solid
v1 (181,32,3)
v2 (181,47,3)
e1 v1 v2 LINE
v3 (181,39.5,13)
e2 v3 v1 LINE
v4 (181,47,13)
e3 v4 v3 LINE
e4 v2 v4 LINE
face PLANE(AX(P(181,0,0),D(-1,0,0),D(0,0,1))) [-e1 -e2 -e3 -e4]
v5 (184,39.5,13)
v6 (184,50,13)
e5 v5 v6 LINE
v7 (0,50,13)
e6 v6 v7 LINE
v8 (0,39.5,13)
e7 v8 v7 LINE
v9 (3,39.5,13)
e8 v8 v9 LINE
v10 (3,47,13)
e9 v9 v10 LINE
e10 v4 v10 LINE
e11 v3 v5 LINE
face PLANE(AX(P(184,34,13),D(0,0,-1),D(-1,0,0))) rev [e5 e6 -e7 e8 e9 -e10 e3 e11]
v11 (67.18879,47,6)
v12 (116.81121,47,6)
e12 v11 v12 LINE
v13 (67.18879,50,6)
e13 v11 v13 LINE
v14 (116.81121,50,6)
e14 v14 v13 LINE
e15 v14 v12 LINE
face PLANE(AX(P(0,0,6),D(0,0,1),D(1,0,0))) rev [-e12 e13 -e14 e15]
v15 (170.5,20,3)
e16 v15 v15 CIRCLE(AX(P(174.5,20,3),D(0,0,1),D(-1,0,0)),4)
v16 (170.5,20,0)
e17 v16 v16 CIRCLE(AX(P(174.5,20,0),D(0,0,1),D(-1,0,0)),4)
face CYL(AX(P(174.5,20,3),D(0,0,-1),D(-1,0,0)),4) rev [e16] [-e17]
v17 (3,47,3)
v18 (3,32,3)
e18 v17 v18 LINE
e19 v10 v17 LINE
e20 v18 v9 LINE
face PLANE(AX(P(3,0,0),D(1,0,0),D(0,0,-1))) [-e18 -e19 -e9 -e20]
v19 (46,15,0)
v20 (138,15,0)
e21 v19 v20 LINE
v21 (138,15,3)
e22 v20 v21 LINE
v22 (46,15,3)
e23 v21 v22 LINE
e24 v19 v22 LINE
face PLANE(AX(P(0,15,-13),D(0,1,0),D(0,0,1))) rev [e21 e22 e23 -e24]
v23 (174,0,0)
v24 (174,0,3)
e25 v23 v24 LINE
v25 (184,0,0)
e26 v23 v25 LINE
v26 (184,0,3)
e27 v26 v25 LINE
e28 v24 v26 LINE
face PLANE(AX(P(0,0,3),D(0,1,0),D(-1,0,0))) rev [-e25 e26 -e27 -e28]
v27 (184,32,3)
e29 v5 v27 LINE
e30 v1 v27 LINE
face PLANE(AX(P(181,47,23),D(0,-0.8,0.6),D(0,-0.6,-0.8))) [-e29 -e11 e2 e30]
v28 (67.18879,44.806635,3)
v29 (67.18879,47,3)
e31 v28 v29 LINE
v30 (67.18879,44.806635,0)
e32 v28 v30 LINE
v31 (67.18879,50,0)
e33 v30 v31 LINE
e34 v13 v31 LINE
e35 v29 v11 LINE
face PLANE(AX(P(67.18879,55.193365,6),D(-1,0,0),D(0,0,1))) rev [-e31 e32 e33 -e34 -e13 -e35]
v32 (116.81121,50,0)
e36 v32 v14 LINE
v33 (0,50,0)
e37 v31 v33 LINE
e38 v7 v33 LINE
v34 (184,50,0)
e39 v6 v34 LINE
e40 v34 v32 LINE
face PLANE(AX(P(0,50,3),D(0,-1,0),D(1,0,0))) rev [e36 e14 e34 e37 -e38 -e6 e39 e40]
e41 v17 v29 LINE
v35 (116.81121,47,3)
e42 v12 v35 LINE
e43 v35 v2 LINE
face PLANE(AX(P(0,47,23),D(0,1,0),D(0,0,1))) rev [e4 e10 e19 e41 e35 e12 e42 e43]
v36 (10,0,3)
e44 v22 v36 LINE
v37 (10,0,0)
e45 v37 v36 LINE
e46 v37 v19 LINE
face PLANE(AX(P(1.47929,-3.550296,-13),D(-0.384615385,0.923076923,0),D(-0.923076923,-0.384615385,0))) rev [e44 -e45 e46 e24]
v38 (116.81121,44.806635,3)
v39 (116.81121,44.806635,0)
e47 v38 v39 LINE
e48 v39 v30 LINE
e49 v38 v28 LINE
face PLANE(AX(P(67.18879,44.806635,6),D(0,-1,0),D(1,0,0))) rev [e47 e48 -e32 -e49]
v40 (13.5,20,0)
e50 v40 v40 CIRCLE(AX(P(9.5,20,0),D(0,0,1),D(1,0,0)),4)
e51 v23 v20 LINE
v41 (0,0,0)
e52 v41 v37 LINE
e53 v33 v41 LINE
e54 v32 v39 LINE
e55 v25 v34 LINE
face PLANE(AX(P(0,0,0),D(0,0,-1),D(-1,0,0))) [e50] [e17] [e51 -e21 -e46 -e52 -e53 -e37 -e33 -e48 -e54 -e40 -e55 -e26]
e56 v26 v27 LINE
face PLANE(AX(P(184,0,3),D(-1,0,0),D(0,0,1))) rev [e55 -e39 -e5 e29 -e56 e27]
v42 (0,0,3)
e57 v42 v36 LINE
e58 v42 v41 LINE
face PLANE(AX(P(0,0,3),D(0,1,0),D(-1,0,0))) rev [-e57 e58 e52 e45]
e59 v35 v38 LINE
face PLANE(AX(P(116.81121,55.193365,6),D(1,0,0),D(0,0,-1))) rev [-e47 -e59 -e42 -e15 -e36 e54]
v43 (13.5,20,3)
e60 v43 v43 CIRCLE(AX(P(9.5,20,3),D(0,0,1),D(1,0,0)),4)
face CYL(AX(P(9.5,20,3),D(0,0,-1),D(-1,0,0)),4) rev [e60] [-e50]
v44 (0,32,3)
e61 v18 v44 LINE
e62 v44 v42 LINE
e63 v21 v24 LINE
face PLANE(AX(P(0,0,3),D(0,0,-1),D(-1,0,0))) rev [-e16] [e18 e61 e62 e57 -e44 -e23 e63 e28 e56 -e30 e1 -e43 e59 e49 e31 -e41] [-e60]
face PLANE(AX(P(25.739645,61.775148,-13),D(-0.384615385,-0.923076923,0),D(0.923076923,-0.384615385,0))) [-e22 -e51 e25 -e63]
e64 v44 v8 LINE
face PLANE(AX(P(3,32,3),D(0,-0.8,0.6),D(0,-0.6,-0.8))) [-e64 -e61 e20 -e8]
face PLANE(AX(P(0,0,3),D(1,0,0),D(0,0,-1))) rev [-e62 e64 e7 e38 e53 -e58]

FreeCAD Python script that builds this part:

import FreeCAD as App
import Part
import Sketcher

doc = App.newDocument("Part")
body = doc.addObject("PartDesign::Body", "Body")

# Sketch on XY plane
sketch1 = doc.addObject("Sketcher::SketchObject", "Sketch")
body.addObject(sketch1)
sketch1.AttachmentSupport = (doc.XY_Plane, [""])
sketch1.MapMode = "FlatFace"
sketch1.addGeometry([
    Part.LineSegment(App.Vector(0, 50, 0), App.Vector(0, 0, 0)),  # 0
    Part.LineSegment(App.Vector(0, 0, 0), App.Vector(184, 0, 0)),  # 1
    Part.LineSegment(App.Vector(184, 0, 0), App.Vector(184, 50, 0)),  # 2
    Part.LineSegment(App.Vector(184, 50, 0), App.Vector(0, 50, 0)),  # 3
    Part.Circle(App.Vector(9.5, 20, 0), App.Vector(0, 0, 1), 4),  # 4
    Part.Circle(App.Vector(174.5, 20, 0), App.Vector(0, 0, 1), 4),  # 5
], False)
sketch1.addConstraint([
    Sketcher.Constraint("Coincident", 0, 2, 1, 1),
    Sketcher.Constraint("Coincident", 1, 2, 2, 1),
    Sketcher.Constraint("Coincident", 2, 2, 3, 1),
    Sketcher.Constraint("Coincident", 3, 2, 0, 1),
    Sketcher.Constraint("Vertical", 0),
    Sketcher.Constraint("Horizontal", 1),
    Sketcher.Constraint("Vertical", 2),
    Sketcher.Constraint("Horizontal", 3),
    Sketcher.Constraint("Coincident", 0, 2, -1, 1),
    Sketcher.Constraint("Equal", 4, 5),
    Sketcher.Constraint("Horizontal", 4, 3, 5, 3),
    Sketcher.Constraint("Diameter", 4, 8.0),
    Sketcher.Constraint("DistanceX", 1, 1, 1, 2, 184.0),
    Sketcher.Constraint("DistanceY", 0, 2, 0, 1, 50.0),
    Sketcher.Constraint("DistanceY", -1, 1, 4, 3, 20.0),
    Sketcher.Constraint("DistanceX", 4, 3, 5, 3, 165.0),
    Sketcher.Constraint("DistanceX", -1, 1, 4, 3, 9.5),
])
pad1 = doc.addObject("PartDesign::Pad", "Pad")
body.addObject(pad1)
pad1.Profile = sketch1
pad1.Length = 3

# Sketch on XY plane
sketch2 = doc.addObject("Sketcher::SketchObject", "Sketch001")
body.addObject(sketch2)
sketch2.AttachmentSupport = (doc.XY_Plane, [""])
sketch2.MapMode = "FlatFace"
sketch2.AttachmentOffset = App.Placement(App.Vector(0, 0, 3), App.Rotation())
sketch2.addGeometry([
    Part.LineSegment(App.Vector(0, 50, 0), App.Vector(0, 47, 0)),
    Part.LineSegment(App.Vector(0, 47, 0), App.Vector(184, 47, 0)),
    Part.LineSegment(App.Vector(184, 47, 0), App.Vector(184, 50, 0)),
    Part.LineSegment(App.Vector(184, 50, 0), App.Vector(0, 50, 0)),
], False)
sketch2.addConstraint([
    Sketcher.Constraint("Coincident", 0, 2, 1, 1),
    Sketcher.Constraint("Coincident", 1, 2, 2, 1),
    Sketcher.Constraint("Coincident", 2, 2, 3, 1),
    Sketcher.Constraint("Coincident", 3, 2, 0, 1),
    Sketcher.Constraint("Vertical", 0),
    Sketcher.Constraint("Horizontal", 1),
    Sketcher.Constraint("Vertical", 2),
    Sketcher.Constraint("Horizontal", 3),
    Sketcher.Constraint("PointOnObject", 0, 2, -2),
    Sketcher.Constraint("DistanceX", 1, 1, 1, 2, 184.0),
    Sketcher.Constraint("DistanceY", 0, 2, 0, 1, 3.0),
    Sketcher.Constraint("DistanceY", -1, 1, 0, 2, 47.0),
])
pad2 = doc.addObject("PartDesign::Pad", "Pad001")
body.addObject(pad2)
pad2.Profile = sketch2
pad2.Length = 20

# Sketch on YZ plane
sketch3 = doc.addObject("Sketcher::SketchObject", "Sketch002")
body.addObject(sketch3)
sketch3.AttachmentSupport = (doc.YZ_Plane, [""])
sketch3.MapMode = "FlatFace"
sketch3.addGeometry([
    Part.LineSegment(App.Vector(47, 23, 0), App.Vector(47, 3, 0)),
    Part.LineSegment(App.Vector(47, 3, 0), App.Vector(32, 3, 0)),
    Part.LineSegment(App.Vector(32, 3, 0), App.Vector(47, 23, 0)),
], False)
sketch3.addConstraint([
    Sketcher.Constraint("Coincident", 0, 2, 1, 1),
    Sketcher.Constraint("Coincident", 1, 2, 2, 1),
    Sketcher.Constraint("Coincident", 2, 2, 0, 1),
    Sketcher.Constraint("Vertical", 0),
    Sketcher.Constraint("Horizontal", 1),
    Sketcher.Constraint("DistanceX", 1, 2, 1, 1, 15.0),
    Sketcher.Constraint("DistanceY", 0, 2, 0, 1, 20.0),
    Sketcher.Constraint("DistanceX", -1, 1, 0, 2, 47.0),
    Sketcher.Constraint("DistanceY", -1, 1, 0, 2, 3.0),
])
pad3 = doc.addObject("PartDesign::Pad", "Pad002")
body.addObject(pad3)
pad3.Profile = sketch3
pad3.Length = 3

# Sketch on YZ plane
sketch4 = doc.addObject("Sketcher::SketchObject", "Sketch003")
body.addObject(sketch4)
sketch4.AttachmentSupport = (doc.YZ_Plane, [""])
sketch4.MapMode = "FlatFace"
sketch4.AttachmentOffset = App.Placement(App.Vector(0, 0, 184), App.Rotation())
sketch4.addGeometry([
    Part.LineSegment(App.Vector(47, 23, 0), App.Vector(32, 3, 0)),
    Part.LineSegment(App.Vector(32, 3, 0), App.Vector(47, 3, 0)),
    Part.LineSegment(App.Vector(47, 3, 0), App.Vector(47, 23, 0)),
], False)
sketch4.addConstraint([
    Sketcher.Constraint("Coincident", 0, 2, 1, 1),
    Sketcher.Constraint("Coincident", 1, 2, 2, 1),
    Sketcher.Constraint("Coincident", 2, 2, 0, 1),
    Sketcher.Constraint("Horizontal", 1),
    Sketcher.Constraint("Vertical", 2),
    Sketcher.Constraint("DistanceX", 1, 1, 1, 2, 15.0),
    Sketcher.Constraint("DistanceY", 2, 1, 2, 2, 20.0),
    Sketcher.Constraint("DistanceX", -1, 1, 0, 2, 32.0),
    Sketcher.Constraint("DistanceY", -1, 1, 0, 2, 3.0),
])
pad4 = doc.addObject("PartDesign::Pad", "Pad003")
body.addObject(pad4)
pad4.Profile = sketch4
pad4.Length = 3
pad4.Reversed = True

# Sketch on XY plane
sketch5 = doc.addObject("Sketcher::SketchObject", "Sketch004")
body.addObject(sketch5)
sketch5.AttachmentSupport = (doc.XY_Plane, [""])
sketch5.MapMode = "FlatFace"
sketch5.addGeometry([
    Part.LineSegment(App.Vector(117, 55, 0), App.Vector(117, 45, 0)),
    Part.LineSegment(App.Vector(117, 45, 0), App.Vector(67, 45, 0)),
    Part.LineSegment(App.Vector(67, 45, 0), App.Vector(67, 55, 0)),
    Part.LineSegment(App.Vector(67, 55, 0), App.Vector(117, 55, 0)),
], False)
sketch5.addConstraint([
    Sketcher.Constraint("Coincident", 0, 2, 1, 1),
    Sketcher.Constraint("Coincident", 1, 2, 2, 1),
    Sketcher.Constraint("Coincident", 2, 2, 3, 1),
    Sketcher.Constraint("Coincident", 3, 2, 0, 1),
    Sketcher.Constraint("Vertical", 0),
    Sketcher.Constraint("Horizontal", 1),
    Sketcher.Constraint("Vertical", 2),
    Sketcher.Constraint("Horizontal", 3),
    Sketcher.Constraint("DistanceX", 1, 2, 1, 1, 49.62242),
    Sketcher.Constraint("DistanceY", 0, 2, 0, 1, 10.386731),
    Sketcher.Constraint("DistanceX", -1, 1, 0, 2, 116.81121),
    Sketcher.Constraint("DistanceY", -1, 1, 0, 2, 44.806635),
])
pocket1 = doc.addObject("PartDesign::Pocket", "Pocket")
body.addObject(pocket1)
pocket1.Profile = sketch5
pocket1.Length = 6
pocket1.Reversed = True

# Sketch on XZ plane
sketch6 = doc.addObject("Sketcher::SketchObject", "Sketch005")
body.addObject(sketch6)
sketch6.AttachmentSupport = (doc.XZ_Plane, [""])
sketch6.MapMode = "FlatFace"
sketch6.AttachmentOffset = App.Placement(App.Vector(0, 0, -50), App.Rotation())
sketch6.addGeometry([
    Part.LineSegment(App.Vector(0, 13, 0), App.Vector(0, 23, 0)),
    Part.LineSegment(App.Vector(0, 23, 0), App.Vector(184, 23, 0)),
    Part.LineSegment(App.Vector(184, 23, 0), App.Vector(184, 13, 0)),
    Part.LineSegment(App.Vector(184, 13, 0), App.Vector(0, 13, 0)),
], False)
sketch6.addConstraint([
    Sketcher.Constraint("Coincident", 0, 2, 1, 1),
    Sketcher.Constraint("Coincident", 1, 2, 2, 1),
    Sketcher.Constraint("Coincident", 2, 2, 3, 1),
    Sketcher.Constraint("Coincident", 3, 2, 0, 1),
    Sketcher.Constraint("Vertical", 0),
    Sketcher.Constraint("Horizontal", 1),
    Sketcher.Constraint("Vertical", 2),
    Sketcher.Constraint("Horizontal", 3),
    Sketcher.Constraint("PointOnObject", 0, 2, -2),
    Sketcher.Constraint("DistanceX", 1, 1, 1, 2, 184.0),
    Sketcher.Constraint("DistanceY", 0, 1, 0, 2, 10.0),
    Sketcher.Constraint("DistanceY", -1, 1, 0, 2, 23.0),
])
pocket2 = doc.addObject("PartDesign::Pocket", "Pocket001")
body.addObject(pocket2)
pocket2.Profile = sketch6
pocket2.Length = 16
pocket2.Reversed = True

# Sketch on XY plane
sketch7 = doc.addObject("Sketcher::SketchObject", "Sketch006")
body.addObject(sketch7)
sketch7.AttachmentSupport = (doc.XY_Plane, [""])
sketch7.MapMode = "FlatFace"
sketch7.AttachmentOffset = App.Placement(App.Vector(0, 0, 3), App.Rotation())
sketch7.addGeometry([
    Part.LineSegment(App.Vector(46, 15, 0), App.Vector(10, 0, 0)),
    Part.LineSegment(App.Vector(10, 0, 0), App.Vector(174, 0, 0)),
    Part.LineSegment(App.Vector(174, 0, 0), App.Vector(138, 15, 0)),
    Part.LineSegment(App.Vector(138, 15, 0), App.Vector(46, 15, 0)),
], False)
sketch7.addConstraint([
    Sketcher.Constraint("Coincident", 0, 2, 1, 1),
    Sketcher.Constraint("Coincident", 1, 2, 2, 1),
    Sketcher.Constraint("Coincident", 2, 2, 3, 1),
    Sketcher.Constraint("Coincident", 3, 2, 0, 1),
    Sketcher.Constraint("Horizontal", 1),
    Sketcher.Constraint("Horizontal", 3),
    Sketcher.Constraint("PointOnObject", 0, 2, -1),
    Sketcher.Constraint("Equal", 0, 2),
    Sketcher.Constraint("DistanceX", 1, 1, 1, 2, 164.0),
    Sketcher.Constraint("DistanceX", 3, 2, 3, 1, 92.0),
    Sketcher.Constraint("Distance", 0, 39.0),
    Sketcher.Constraint("DistanceX", -1, 1, 0, 2, 10.0),
])
pocket3 = doc.addObject("PartDesign::Pocket", "Pocket002")
body.addObject(pocket3)
pocket3.Profile = sketch7
pocket3.Length = 16

doc.recompute()
